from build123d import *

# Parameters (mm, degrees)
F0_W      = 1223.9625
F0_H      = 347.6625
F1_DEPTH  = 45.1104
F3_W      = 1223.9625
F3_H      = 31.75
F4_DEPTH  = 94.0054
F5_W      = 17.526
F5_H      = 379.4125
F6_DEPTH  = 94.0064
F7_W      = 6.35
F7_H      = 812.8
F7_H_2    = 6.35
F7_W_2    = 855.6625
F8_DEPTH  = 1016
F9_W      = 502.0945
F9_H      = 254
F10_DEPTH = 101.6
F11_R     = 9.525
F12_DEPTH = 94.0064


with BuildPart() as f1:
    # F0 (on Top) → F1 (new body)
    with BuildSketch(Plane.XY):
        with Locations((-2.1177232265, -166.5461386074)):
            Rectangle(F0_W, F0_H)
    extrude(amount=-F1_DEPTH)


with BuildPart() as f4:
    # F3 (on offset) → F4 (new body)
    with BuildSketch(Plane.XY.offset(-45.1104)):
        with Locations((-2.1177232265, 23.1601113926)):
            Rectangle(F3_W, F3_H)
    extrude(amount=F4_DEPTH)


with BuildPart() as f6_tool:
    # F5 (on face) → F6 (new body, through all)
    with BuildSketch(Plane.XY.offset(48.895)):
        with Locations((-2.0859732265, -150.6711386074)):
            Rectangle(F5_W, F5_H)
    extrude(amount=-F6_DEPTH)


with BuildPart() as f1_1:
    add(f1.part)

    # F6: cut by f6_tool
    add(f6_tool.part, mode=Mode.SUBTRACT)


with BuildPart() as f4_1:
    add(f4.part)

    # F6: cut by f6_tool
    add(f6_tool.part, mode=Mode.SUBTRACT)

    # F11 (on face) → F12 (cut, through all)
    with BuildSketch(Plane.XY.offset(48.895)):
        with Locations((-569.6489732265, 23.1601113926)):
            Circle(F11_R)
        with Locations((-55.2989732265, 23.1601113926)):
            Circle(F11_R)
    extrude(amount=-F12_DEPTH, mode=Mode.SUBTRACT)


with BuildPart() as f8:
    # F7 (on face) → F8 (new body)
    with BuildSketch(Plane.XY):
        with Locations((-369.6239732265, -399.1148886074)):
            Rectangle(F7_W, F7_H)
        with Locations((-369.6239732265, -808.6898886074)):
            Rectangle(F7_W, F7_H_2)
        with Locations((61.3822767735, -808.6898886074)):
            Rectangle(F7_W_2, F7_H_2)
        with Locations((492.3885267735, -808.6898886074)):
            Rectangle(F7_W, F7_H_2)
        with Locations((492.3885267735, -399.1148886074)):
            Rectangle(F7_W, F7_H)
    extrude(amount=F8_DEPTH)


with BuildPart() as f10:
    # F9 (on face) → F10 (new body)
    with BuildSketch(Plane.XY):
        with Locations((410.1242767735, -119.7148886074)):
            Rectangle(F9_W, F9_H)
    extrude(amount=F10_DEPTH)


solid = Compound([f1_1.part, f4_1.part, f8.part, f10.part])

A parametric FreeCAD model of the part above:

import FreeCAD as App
import Part
import Sketcher
Q = App.Units.Quantity

doc = App.newDocument("Part")
body = doc.addObject("PartDesign::Body", "Body")

sketch1 = body.newObject("Sketcher::SketchObject", "Sketch")
sketch1.AttachmentSupport = (doc.getObject("XY_Plane"), [""])
sketch1.MapMode = "FlatFace"
sketch1.addGeometry(Part.LineSegment(App.Vector(-614, 7, 0), App.Vector(-614, -340, 0)), False)
sketch1.addGeometry(Part.LineSegment(App.Vector(-614, -340, 0), App.Vector(610, -340, 0)), False)
sketch1.addGeometry(Part.LineSegment(App.Vector(610, -340, 0), App.Vector(610, 7, 0)), False)
sketch1.addGeometry(Part.LineSegment(App.Vector(610, 7, 0), App.Vector(-614, 7, 0)), False)
sketch1.addConstraint(Sketcher.Constraint("Coincident", 0, 2, 1, 1))
sketch1.addConstraint(Sketcher.Constraint("Coincident", 1, 2, 2, 1))
sketch1.addConstraint(Sketcher.Constraint("Coincident", 2, 2, 3, 1))
sketch1.addConstraint(Sketcher.Constraint("Coincident", 3, 2, 0, 1))
sketch1.addConstraint(Sketcher.Constraint("Vertical", 0))
sketch1.addConstraint(Sketcher.Constraint("Horizontal", 1))
sketch1.addConstraint(Sketcher.Constraint("Vertical", 2))
sketch1.addConstraint(Sketcher.Constraint("Horizontal", 3))
sketch1.addConstraint(Sketcher.Constraint("DistanceX", 1, 1, 1, 2, Q("48.1875 in")))
sketch1.addConstraint(Sketcher.Constraint("DistanceY", 0, 2, 0, 1, Q("13.6875 in")))
sketch1.addConstraint(Sketcher.Constraint("DistanceY", 0, 2, -1, 1, 340.377389))
sketch1.addConstraint(Sketcher.Constraint("DistanceX", 0, 2, -1, 1, 614.098973))
pad1 = body.newObject("PartDesign::Pad", "Pad")
pad1.Profile = sketch1
pad1.Length = Q("1.776 in")
pad1.Reversed = True
body2 = doc.addObject("PartDesign::Body", "Body001")

sketch2 = body2.newObject("Sketcher::SketchObject", "Sketch001")
sketch2.AttachmentSupport = (doc.getObject("XY_Plane001"), [""])
sketch2.MapMode = "FlatFace"
sketch2.AttachmentOffset = App.Placement(App.Vector(0, 0, -1.776 * 25.4), App.Rotation())
sketch2.addGeometry(Part.LineSegment(App.Vector(-614, 39, 0), App.Vector(-614, 7, 0)), False)
sketch2.addGeometry(Part.LineSegment(App.Vector(-614, 7, 0), App.Vector(610, 7, 0)), False)
sketch2.addGeometry(Part.LineSegment(App.Vector(610, 7, 0), App.Vector(610, 39, 0)), False)
sketch2.addGeometry(Part.LineSegment(App.Vector(610, 39, 0), App.Vector(-614, 39, 0)), False)
sketch2.addConstraint(Sketcher.Constraint("Coincident", 0, 2, 1, 1))
sketch2.addConstraint(Sketcher.Constraint("Coincident", 1, 2, 2, 1))
sketch2.addConstraint(Sketcher.Constraint("Coincident", 2, 2, 3, 1))
sketch2.addConstraint(Sketcher.Constraint("Coincident", 3, 2, 0, 1))
sketch2.addConstraint(Sketcher.Constraint("Vertical", 0))
sketch2.addConstraint(Sketcher.Constraint("Horizontal", 1))
sketch2.addConstraint(Sketcher.Constraint("Vertical", 2))
sketch2.addConstraint(Sketcher.Constraint("Horizontal", 3))
sketch2.addConstraint(Sketcher.Constraint("DistanceY", 0, 2, 0, 1, Q("1.25 in")))
sketch2.addConstraint(Sketcher.Constraint("DistanceX", 1, 1, 1, 2, Q("48.1875 in")))
sketch2.addConstraint(Sketcher.Constraint("DistanceY", -1, 1, 0, 2, 7.285111))
sketch2.addConstraint(Sketcher.Constraint("DistanceX", 0, 2, -1, 1, 614.098973))
pad2 = body2.newObject("PartDesign::Pad", "Pad001")
pad2.Profile = sketch2
pad2.Length = Q("3.701 in")
body3 = doc.addObject("PartDesign::Body", "Body002")

sketch3 = body3.newObject("Sketcher::SketchObject", "Sketch002")
sketch3.AttachmentSupport = (doc.getObject("XY_Plane002"), [""])
sketch3.MapMode = "FlatFace"
sketch3.AttachmentOffset = App.Placement(App.Vector(0, 0, 1.925 * 25.4), App.Rotation())
sketch3.addGeometry(Part.LineSegment(App.Vector(-11, 39, 0), App.Vector(-11, -340, 0)), False)
sketch3.addGeometry(Part.LineSegment(App.Vector(-11, -340, 0), App.Vector(7, -340, 0)), False)
sketch3.addGeometry(Part.LineSegment(App.Vector(7, -340, 0), App.Vector(7, 39, 0)), False)
sketch3.addGeometry(Part.LineSegment(App.Vector(7, 39, 0), App.Vector(-11, 39, 0)), False)
sketch3.addConstraint(Sketcher.Constraint("Coincident", 0, 2, 1, 1))
sketch3.addConstraint(Sketcher.Constraint("Coincident", 1, 2, 2, 1))
sketch3.addConstraint(Sketcher.Constraint("Coincident", 2, 2, 3, 1))
sketch3.addConstraint(Sketcher.Constraint("Coincident", 3, 2, 0, 1))
sketch3.addConstraint(Sketcher.Constraint("Vertical", 0))
sketch3.addConstraint(Sketcher.Constraint("Horizontal", 1))
sketch3.addConstraint(Sketcher.Constraint("Vertical", 2))
sketch3.addConstraint(Sketcher.Constraint("Horizontal", 3))
sketch3.addConstraint(Sketcher.Constraint("DistanceX", 1, 1, 1, 2, Q("0.69 in")))
sketch3.addConstraint(Sketcher.Constraint("DistanceY", 0, 2, 0, 1, Q("14.9375 in")))
sketch3.addConstraint(Sketcher.Constraint("DistanceY", 0, 2, -1, 1, 340.377389))
sketch3.addConstraint(Sketcher.Constraint("DistanceX", 0, 2, -1, 1, 10.848973))
pad3 = body3.newObject("PartDesign::Pad", "Pad002")
pad3.Profile = sketch3
pad3.Length = 94.0064
pad3.Reversed = True
body.AllowCompound = True
doc.recompute()

body4 = doc.addObject("PartDesign::Body", "Body003")
body4.BaseFeature = body3
boolean = body.newObject("PartDesign::Boolean", "Boolean")
boolean.Type = "Cut"
boolean.addObjects([body4])
doc.recompute()
body2.AllowCompound = True
doc.recompute()

boolean2 = body2.newObject("PartDesign::Boolean", "Boolean001")
boolean2.Type = "Cut"
boolean2.addObjects([body3])

sketch4 = body2.newObject("Sketcher::SketchObject", "Sketch003")
sketch4.AttachmentSupport = (doc.getObject("XY_Plane001"), [""])
sketch4.MapMode = "FlatFace"
sketch4.AttachmentOffset = App.Placement(App.Vector(0, 0, 1.925 * 25.4), App.Rotation())
sketch4.addGeometry(Part.Circle(App.Vector(-570, 23, 0), App.Vector(0, 0, 1), 10), False)
sketch4.addGeometry(Part.Circle(App.Vector(-55, 23, 0), App.Vector(0, 0, 1), 10), False)
sketch4.addConstraint(Sketcher.Constraint("Equal", 0, 1))
sketch4.addConstraint(Sketcher.Constraint("Horizontal", 0, 3, 1, 3))
sketch4.addConstraint(Sketcher.Constraint("Diameter", 0, Q("0.75 in")))
sketch4.addConstraint(Sketcher.Constraint("DistanceX", 0, 3, 1, 3, Q("20.25 in")))
sketch4.addConstraint(Sketcher.Constraint("DistanceY", -1, 1, 0, 3, 23.160111))
sketch4.addConstraint(Sketcher.Constraint("DistanceX", 0, 3, -1, 1, 569.648973))
pocket1 = body2.newObject("PartDesign::Pocket", "Pocket")
pocket1.Profile = sketch4
pocket1.Type = "ThroughAll"
body5 = doc.addObject("PartDesign::Body", "Body004")

sketch5 = body5.newObject("Sketcher::SketchObject", "Sketch004")
sketch5.AttachmentSupport = (doc.getObject("XY_Plane004"), [""])
sketch5.MapMode = "FlatFace"
sketch5.addGeometry(Part.LineSegment(App.Vector(-373, 7, 0), App.Vector(-373, -812, 0)), False)
sketch5.addGeometry(Part.LineSegment(App.Vector(-373, -812, 0), App.Vector(496, -812, 0)), False)
sketch5.addGeometry(Part.LineSegment(App.Vector(496, -812, 0), App.Vector(496, 7, 0)), False)
sketch5.addGeometry(Part.LineSegment(App.Vector(496, 7, 0), App.Vector(489, 7, 0)), False)
sketch5.addGeometry(Part.LineSegment(App.Vector(489, 7, 0), App.Vector(489, -806, 0)), False)
sketch5.addGeometry(Part.LineSegment(App.Vector(489, -806, 0), App.Vector(-366, -806, 0)), False)
sketch5.addGeometry(Part.LineSegment(App.Vector(-366, -806, 0), App.Vector(-366, 7, 0)), False)
sketch5.addGeometry(Part.LineSegment(App.Vector(-366, 7, 0), App.Vector(-373, 7, 0)), False)
sketch5.addConstraint(Sketcher.Constraint("Coincident", 0, 2, 1, 1))
sketch5.addConstraint(Sketcher.Constraint("Coincident", 1, 2, 2, 1))
sketch5.addConstraint(Sketcher.Constraint("Coincident", 2, 2, 3, 1))
sketch5.addConstraint(Sketcher.Constraint("Coincident", 3, 2, 4, 1))
sketch5.addConstraint(Sketcher.Constraint("Coincident", 4, 2, 5, 1))
sketch5.addConstraint(Sketcher.Constraint("Coincident", 5, 2, 6, 1))
sketch5.addConstraint(Sketcher.Constraint("Coincident", 6, 2, 7, 1))
sketch5.addConstraint(Sketcher.Constraint("Coincident", 7, 2, 0, 1))
sketch5.addConstraint(Sketcher.Constraint("Vertical", 0))
sketch5.addConstraint(Sketcher.Constraint("Horizontal", 1))
sketch5.addConstraint(Sketcher.Constraint("Vertical", 2))
sketch5.addConstraint(Sketcher.Constraint("Horizontal", 3))
sketch5.addConstraint(Sketcher.Constraint("Vertical", 4))
sketch5.addConstraint(Sketcher.Constraint("Horizontal", 5))
sketch5.addConstraint(Sketcher.Constraint("Vertical", 6))
sketch5.addConstraint(Sketcher.Constraint("Horizontal", 7))
sketch5.addConstraint(Sketcher.Constraint("Horizontal", 3, 2, 6, 2))
sketch5.addConstraint(Sketcher.Constraint("Equal", 3, 7))
sketch5.addConstraint(Sketcher.Constraint("DistanceY", 4, 2, 4, 1, Q("32 in")))
sketch5.addConstraint(Sketcher.Constraint("DistanceX", 3, 2, 3, 1, Q("0.25 in")))
sketch5.addConstraint(Sketcher.Constraint("DistanceY", 0, 2, 0, 1, Q("32.25 in")))
sketch5.addConstraint(Sketcher.Constraint("DistanceX", 1, 1, 1, 2, Q("34.1875 in")))
sketch5.addConstraint(Sketcher.Constraint("DistanceY", 0, 2, -1, 1, 811.864889))
sketch5.addConstraint(Sketcher.Constraint("DistanceX", 0, 2, -1, 1, 372.798973))
pad4 = body5.newObject("PartDesign::Pad", "Pad003")
pad4.Profile = sketch5
pad4.Length = Q("40 in")
body6 = doc.addObject("PartDesign::Body", "Body005")

sketch6 = body6.newObject("Sketcher::SketchObject", "Sketch005")
sketch6.AttachmentSupport = (doc.getObject("XY_Plane005"), [""])
sketch6.MapMode = "FlatFace"
sketch6.addGeometry(Part.LineSegment(App.Vector(159, 7, 0), App.Vector(159, -247, 0)), False)
sketch6.addGeometry(Part.LineSegment(App.Vector(159, -247, 0), App.Vector(661, -247, 0)), False)
sketch6.addGeometry(Part.LineSegment(App.Vector(661, -247, 0), App.Vector(661, 7, 0)), False)
sketch6.addGeometry(Part.LineSegment(App.Vector(661, 7, 0), App.Vector(159, 7, 0)), False)
sketch6.addConstraint(Sketcher.Constraint("Coincident", 0, 2, 1, 1))
sketch6.addConstraint(Sketcher.Constraint("Coincident", 1, 2, 2, 1))
sketch6.addConstraint(Sketcher.Constraint("Coincident", 2, 2, 3, 1))
sketch6.addConstraint(Sketcher.Constraint("Coincident", 3, 2, 0, 1))
sketch6.addConstraint(Sketcher.Constraint("Vertical", 0))
sketch6.addConstraint(Sketcher.Constraint("Horizontal", 1))
sketch6.addConstraint(Sketcher.Constraint("Vertical", 2))
sketch6.addConstraint(Sketcher.Constraint("Horizontal", 3))
sketch6.addConstraint(Sketcher.Constraint("DistanceY", 0, 2, 0, 1, Q("10 in")))
sketch6.addConstraint(Sketcher.Constraint("DistanceX", 1, 1, 1, 2, Q("19.7675 in")))
sketch6.addConstraint(Sketcher.Constraint("DistanceY", 0, 2, -1, 1, 246.714889))
sketch6.addConstraint(Sketcher.Constraint("DistanceX", -1, 1, 0, 2, 159.077027))
pad5 = body6.newObject("PartDesign::Pad", "Pad004")
pad5.Profile = sketch6
pad5.Length = Q("4 in")

doc.recompute()
